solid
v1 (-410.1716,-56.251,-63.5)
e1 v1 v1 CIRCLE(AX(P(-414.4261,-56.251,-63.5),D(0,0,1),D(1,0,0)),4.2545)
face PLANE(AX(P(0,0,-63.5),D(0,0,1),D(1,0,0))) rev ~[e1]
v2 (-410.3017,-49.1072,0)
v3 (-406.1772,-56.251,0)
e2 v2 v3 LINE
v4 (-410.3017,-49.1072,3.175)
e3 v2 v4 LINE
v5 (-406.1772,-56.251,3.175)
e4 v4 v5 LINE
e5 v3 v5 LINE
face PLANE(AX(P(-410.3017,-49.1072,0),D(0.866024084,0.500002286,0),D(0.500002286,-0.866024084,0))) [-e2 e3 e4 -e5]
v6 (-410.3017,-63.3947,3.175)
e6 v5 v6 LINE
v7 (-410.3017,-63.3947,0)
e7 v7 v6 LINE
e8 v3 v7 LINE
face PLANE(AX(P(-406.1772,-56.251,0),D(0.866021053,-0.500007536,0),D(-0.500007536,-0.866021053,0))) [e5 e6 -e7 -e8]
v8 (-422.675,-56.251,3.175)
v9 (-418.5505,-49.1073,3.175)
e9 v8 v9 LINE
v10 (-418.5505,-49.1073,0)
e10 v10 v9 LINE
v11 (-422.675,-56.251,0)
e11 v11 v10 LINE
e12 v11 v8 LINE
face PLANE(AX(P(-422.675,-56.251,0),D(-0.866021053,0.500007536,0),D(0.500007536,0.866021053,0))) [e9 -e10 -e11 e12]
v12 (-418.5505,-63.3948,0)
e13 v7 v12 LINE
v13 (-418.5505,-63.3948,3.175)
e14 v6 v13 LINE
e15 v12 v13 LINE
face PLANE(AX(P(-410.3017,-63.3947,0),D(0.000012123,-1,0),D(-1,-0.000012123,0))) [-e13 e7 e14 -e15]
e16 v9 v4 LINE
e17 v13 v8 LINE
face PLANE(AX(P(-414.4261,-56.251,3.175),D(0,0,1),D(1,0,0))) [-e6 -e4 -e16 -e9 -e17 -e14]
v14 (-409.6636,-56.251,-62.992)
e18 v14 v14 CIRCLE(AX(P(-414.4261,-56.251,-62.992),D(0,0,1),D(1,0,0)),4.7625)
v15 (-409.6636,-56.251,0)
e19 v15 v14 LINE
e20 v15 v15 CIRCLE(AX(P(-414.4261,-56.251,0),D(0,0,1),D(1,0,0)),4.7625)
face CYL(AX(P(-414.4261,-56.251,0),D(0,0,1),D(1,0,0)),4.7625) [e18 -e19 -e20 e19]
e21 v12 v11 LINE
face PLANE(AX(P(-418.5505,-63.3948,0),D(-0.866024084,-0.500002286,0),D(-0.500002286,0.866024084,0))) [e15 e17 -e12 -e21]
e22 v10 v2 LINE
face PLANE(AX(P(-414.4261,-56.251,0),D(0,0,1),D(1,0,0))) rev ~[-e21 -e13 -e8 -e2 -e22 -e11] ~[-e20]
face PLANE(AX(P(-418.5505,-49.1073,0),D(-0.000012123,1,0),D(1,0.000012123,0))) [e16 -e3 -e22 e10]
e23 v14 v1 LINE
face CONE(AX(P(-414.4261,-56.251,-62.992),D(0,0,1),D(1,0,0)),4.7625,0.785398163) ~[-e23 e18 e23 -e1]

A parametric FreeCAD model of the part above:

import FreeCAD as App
import Part
import Sketcher
Q = App.Units.Quantity


def edges_at(feature, points):
    """Names of the edges that pass closest to the given points."""
    edges = feature.Shape.Edges
    near = lambda p: min(range(len(edges)), key=lambda i: edges[i].distToShape(Part.Vertex(*p))[0])
    return sorted({f"Edge{near(p) + 1}" for p in points})


def add_polygon(sketch, points):
    """Adds a closed chain of lines whose ends are joined by coincident constraints."""
    first, n = sketch.GeometryCount, len(points)
    for a, b in zip(points, points[1:] + points[:1]):
        sketch.addGeometry(Part.LineSegment(App.Vector(*a, 0), App.Vector(*b, 0)), False)
    for i in range(n):
        sketch.addConstraint(Sketcher.Constraint("Coincident", first + i, 2, first + (i + 1) % n, 1))

doc = App.newDocument("Part")
body = doc.addObject("PartDesign::Body", "Body")

sketch1 = body.newObject("Sketcher::SketchObject", "Sketch")
sketch1.AttachmentSupport = (doc.getObject("XY_Plane"), [""])
sketch1.MapMode = "FlatFace"
sketch1.addGeometry(Part.Circle(App.Vector(-414.4, -56.3, 0), App.Vector(0, 0, 1), 4.8), False)
sketch1.addConstraint([
    Sketcher.Constraint("Diameter", 0, Q("0.375 in")),
    Sketcher.Constraint("DistanceX", 0, 3, -1, 1, Q("16.316 in")),
    Sketcher.Constraint("DistanceY", 0, 3, -1, 1, Q("2.2146 in")),
])
pad1 = body.newObject("PartDesign::Pad", "Pad")
pad1.Profile = sketch1
pad1.Length = Q("2.5 in")
pad1.Reversed = True

sketch2 = body.newObject("Sketcher::SketchObject", "Sketch001")
sketch2.AttachmentSupport = (doc.getObject("XY_Plane"), [""])
sketch2.MapMode = "FlatFace"
add_polygon(sketch2, [(-419, -49), (-423, -56), (-419, -63), (-410, -63), (-406, -56), (-410, -49)])
sketch2.addConstraint([
    Sketcher.Constraint("Horizontal", 2),
    Sketcher.Constraint("Horizontal", 5),
    Sketcher.Constraint("Parallel", 0, 3),
    Sketcher.Constraint("Parallel", 1, 4),
    Sketcher.Constraint("Horizontal", 0, 2, 3, 2),
    Sketcher.Constraint("Vertical", 2, 2, 4, 2),
    Sketcher.Constraint("Vertical", 1, 2, 5, 2),
    Sketcher.Constraint("Angle", 0, Q("-120.0005 deg")),
    Sketcher.Constraint("DistanceY", 2, 2, 4, 2, Q("0.5625 in")),
    Sketcher.Constraint("DistanceX", 2, 1, 2, 2, 8.2488),
    Sketcher.Constraint("DistanceY", 0, 2, -1, 1, Q("2.2146 in")),
    Sketcher.Constraint("DistanceX", 2, 2, -1, 1, Q("16.1536 in")),
])
pad2 = body.newObject("PartDesign::Pad", "Pad001")
pad2.Profile = sketch2
pad2.Length = Q("0.125 in")
doc.recompute()

chamfer = body.newObject("PartDesign::Chamfer", "Chamfer")
chamfer.Base = (pad2, edges_at(pad2, [(-419.189, -56.251, -63.5)]))
chamfer.Size = Q("0.02 in")

doc.recompute()
